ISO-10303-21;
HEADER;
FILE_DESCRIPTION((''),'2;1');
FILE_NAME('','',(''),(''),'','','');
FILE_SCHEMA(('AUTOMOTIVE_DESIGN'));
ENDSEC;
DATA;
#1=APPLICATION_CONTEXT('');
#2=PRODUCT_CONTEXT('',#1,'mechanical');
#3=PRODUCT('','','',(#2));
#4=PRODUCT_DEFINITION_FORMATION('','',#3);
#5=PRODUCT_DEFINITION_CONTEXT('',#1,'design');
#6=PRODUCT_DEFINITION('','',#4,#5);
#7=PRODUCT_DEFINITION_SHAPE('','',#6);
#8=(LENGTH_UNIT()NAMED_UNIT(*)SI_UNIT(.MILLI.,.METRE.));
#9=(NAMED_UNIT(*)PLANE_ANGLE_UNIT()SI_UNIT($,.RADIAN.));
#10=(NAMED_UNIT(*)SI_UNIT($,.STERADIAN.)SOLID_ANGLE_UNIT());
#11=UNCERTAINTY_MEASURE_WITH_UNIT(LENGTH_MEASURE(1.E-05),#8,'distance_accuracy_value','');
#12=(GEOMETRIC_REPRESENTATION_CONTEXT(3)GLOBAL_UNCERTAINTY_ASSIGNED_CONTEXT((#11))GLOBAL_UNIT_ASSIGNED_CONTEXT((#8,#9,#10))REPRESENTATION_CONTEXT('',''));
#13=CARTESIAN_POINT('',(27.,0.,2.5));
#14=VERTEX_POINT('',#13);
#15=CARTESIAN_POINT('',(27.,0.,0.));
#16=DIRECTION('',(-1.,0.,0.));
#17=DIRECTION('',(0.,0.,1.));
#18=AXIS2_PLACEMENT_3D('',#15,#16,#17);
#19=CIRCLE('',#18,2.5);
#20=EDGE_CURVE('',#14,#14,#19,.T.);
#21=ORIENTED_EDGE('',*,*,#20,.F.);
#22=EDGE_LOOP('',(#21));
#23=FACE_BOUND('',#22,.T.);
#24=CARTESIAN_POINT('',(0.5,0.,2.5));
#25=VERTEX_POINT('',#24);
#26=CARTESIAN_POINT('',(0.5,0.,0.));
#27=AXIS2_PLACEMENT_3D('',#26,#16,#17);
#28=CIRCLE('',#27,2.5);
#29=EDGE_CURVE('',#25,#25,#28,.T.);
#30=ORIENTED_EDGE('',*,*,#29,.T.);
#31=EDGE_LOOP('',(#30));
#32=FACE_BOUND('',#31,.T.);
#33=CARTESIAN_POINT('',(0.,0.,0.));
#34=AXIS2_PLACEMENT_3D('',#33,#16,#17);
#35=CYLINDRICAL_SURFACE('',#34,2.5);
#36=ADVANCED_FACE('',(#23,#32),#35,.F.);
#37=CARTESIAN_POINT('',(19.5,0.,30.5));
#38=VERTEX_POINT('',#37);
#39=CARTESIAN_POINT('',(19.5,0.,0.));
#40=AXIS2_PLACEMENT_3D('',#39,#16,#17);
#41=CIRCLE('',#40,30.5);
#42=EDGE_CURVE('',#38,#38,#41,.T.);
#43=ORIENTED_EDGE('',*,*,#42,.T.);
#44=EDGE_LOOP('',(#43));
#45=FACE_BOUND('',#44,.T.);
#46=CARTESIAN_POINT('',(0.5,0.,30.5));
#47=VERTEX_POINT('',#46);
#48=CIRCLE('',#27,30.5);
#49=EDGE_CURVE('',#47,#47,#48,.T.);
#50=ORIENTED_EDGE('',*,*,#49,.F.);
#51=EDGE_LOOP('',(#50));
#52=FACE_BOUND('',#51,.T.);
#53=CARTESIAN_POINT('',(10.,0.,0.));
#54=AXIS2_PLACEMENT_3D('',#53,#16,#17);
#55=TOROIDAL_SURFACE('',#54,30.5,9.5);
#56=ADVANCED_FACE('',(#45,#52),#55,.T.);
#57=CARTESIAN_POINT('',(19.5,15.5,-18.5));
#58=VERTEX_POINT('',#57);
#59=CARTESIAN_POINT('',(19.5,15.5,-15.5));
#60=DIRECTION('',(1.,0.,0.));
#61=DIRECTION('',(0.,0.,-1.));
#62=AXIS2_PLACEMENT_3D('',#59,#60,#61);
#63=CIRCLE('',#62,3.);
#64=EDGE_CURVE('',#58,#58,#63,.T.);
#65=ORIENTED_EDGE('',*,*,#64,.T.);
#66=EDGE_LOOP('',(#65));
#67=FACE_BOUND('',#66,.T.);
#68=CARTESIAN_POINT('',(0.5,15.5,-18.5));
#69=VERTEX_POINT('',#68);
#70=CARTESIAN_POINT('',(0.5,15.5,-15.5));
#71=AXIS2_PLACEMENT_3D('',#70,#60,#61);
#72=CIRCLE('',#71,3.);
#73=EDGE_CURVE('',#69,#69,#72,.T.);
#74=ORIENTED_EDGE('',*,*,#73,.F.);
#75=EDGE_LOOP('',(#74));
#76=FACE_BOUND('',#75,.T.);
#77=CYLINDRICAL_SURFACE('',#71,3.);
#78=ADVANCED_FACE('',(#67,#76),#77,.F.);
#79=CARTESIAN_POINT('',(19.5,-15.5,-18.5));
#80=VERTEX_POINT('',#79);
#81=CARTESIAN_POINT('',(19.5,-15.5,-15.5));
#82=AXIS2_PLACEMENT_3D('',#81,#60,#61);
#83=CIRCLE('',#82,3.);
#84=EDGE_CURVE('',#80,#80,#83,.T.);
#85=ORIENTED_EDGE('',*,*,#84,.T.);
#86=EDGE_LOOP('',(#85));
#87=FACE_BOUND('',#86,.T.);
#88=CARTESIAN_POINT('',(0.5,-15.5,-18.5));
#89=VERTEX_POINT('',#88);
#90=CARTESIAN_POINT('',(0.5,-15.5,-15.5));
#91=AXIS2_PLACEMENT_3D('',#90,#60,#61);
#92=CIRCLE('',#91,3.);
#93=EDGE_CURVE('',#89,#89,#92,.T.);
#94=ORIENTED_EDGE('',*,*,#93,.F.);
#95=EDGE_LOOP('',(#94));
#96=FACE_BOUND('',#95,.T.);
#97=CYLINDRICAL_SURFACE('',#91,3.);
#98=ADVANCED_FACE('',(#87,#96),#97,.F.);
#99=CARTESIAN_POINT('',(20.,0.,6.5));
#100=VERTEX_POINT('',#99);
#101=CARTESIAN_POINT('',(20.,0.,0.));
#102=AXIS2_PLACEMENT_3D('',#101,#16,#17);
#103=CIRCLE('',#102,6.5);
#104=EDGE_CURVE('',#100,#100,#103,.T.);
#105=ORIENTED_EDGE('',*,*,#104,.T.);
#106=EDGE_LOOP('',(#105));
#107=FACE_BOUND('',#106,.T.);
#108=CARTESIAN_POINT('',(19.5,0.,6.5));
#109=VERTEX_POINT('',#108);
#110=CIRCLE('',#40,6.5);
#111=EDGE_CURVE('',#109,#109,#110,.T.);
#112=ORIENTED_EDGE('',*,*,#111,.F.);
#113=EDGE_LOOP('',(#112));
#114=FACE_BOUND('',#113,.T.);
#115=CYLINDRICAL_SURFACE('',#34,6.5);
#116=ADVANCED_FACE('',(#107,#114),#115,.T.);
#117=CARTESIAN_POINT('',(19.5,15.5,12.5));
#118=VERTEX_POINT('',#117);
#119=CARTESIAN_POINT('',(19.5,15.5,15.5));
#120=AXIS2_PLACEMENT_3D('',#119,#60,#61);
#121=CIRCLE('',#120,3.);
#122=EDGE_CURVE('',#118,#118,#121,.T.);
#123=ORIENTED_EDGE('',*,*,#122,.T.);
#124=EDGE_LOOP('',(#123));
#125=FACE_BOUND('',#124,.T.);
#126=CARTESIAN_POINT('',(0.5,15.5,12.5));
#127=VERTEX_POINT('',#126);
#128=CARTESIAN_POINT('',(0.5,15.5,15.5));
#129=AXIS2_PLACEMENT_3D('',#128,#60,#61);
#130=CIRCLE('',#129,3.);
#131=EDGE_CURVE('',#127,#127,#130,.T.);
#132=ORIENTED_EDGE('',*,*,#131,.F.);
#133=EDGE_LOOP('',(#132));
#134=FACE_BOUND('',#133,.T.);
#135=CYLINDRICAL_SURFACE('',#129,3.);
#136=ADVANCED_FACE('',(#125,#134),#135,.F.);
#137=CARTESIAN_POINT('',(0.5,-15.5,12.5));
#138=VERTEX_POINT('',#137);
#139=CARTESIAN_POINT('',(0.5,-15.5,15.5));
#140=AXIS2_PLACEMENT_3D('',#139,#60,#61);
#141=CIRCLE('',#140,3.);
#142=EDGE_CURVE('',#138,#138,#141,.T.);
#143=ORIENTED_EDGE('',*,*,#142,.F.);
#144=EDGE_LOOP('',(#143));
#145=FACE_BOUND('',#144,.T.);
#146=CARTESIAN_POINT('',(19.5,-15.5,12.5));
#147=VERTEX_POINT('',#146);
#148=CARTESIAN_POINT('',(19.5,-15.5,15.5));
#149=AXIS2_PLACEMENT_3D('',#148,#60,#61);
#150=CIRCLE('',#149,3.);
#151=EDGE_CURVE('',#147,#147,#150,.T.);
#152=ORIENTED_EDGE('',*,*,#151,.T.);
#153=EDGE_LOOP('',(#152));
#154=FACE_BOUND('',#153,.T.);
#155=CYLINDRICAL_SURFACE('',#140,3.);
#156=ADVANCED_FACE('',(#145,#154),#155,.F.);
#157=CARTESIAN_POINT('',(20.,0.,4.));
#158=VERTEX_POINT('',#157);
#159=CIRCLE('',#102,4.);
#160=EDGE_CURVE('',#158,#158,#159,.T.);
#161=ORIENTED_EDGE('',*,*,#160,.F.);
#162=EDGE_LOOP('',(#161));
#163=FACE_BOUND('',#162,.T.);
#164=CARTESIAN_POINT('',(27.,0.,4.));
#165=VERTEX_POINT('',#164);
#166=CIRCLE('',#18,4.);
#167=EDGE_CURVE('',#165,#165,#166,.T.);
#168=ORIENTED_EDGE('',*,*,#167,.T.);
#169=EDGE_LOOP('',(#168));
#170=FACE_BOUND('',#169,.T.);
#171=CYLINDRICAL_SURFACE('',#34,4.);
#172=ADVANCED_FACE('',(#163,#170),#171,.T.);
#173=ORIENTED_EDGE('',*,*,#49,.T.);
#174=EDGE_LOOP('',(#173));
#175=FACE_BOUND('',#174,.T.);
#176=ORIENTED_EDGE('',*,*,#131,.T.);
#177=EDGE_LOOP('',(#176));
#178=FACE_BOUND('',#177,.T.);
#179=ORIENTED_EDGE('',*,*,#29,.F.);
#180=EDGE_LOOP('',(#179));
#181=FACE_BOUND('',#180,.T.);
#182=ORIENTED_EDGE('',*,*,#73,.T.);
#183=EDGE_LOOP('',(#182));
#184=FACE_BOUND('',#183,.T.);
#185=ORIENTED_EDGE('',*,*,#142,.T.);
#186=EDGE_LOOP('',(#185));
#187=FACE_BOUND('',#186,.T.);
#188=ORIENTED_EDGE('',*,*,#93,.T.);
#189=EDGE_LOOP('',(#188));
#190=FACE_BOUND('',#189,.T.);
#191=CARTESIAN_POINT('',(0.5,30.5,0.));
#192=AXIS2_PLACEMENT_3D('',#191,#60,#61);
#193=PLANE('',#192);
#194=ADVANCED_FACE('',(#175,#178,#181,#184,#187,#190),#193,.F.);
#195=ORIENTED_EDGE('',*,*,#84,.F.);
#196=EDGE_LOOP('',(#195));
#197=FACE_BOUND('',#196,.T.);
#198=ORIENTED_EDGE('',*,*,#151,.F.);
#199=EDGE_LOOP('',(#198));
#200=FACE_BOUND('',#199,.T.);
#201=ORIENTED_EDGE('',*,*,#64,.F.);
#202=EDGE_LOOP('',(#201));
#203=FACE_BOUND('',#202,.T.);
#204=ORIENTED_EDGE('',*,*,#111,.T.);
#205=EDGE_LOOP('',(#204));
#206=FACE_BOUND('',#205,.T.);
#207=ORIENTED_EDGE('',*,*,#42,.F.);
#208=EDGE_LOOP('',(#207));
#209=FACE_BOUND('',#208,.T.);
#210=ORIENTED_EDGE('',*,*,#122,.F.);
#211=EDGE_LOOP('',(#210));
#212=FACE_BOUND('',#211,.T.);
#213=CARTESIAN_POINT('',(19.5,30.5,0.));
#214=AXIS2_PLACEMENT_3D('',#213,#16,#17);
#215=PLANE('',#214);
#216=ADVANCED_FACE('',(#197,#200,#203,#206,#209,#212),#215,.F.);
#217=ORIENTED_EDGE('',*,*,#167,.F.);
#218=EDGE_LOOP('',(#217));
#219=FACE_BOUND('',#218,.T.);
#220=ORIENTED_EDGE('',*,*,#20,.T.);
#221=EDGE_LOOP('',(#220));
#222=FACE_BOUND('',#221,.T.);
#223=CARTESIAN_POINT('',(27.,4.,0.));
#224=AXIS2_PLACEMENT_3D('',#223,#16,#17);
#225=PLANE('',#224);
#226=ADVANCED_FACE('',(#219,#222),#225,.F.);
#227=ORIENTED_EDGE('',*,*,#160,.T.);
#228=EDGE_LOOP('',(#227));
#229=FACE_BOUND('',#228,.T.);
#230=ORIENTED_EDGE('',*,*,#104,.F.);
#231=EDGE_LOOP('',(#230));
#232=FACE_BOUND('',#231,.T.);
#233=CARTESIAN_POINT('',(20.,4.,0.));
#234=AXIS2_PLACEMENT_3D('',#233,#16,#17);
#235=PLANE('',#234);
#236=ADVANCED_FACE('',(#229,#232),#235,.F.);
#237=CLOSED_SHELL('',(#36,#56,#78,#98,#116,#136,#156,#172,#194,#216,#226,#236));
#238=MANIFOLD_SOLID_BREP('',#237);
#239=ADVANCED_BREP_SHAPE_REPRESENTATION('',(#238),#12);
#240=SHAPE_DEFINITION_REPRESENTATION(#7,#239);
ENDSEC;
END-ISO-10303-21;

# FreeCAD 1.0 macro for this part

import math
import FreeCAD as App
import Part
import Sketcher
from FreeCAD import Vector
Q = App.Units.Quantity

doc = App.newDocument("Part")
body = doc.addObject("PartDesign::Body", "Body")

sketch1 = body.newObject("Sketcher::SketchObject", "Sketch")
sketch1.AttachmentSupport = (doc.getObject("XY_Plane"), [""])
sketch1.MapMode = "FlatFace"
sketch1.addGeometry(Part.LineSegment(Vector(27, 2.5, 0), Vector(27, 4, 0)), False)
sketch1.addGeometry(Part.LineSegment(Vector(27, 4, 0), Vector(20, 4, 0)), False)
sketch1.addGeometry(Part.LineSegment(Vector(20, 4, 0), Vector(20, 6.5, 0)), False)
sketch1.addGeometry(Part.LineSegment(Vector(20, 6.5, 0), Vector(19.5, 6.5, 0)), False)
sketch1.addGeometry(Part.LineSegment(Vector(19.5, 6.5, 0), Vector(19.5, 30.5, 0)), False)
sketch1.addGeometry(Part.ArcOfCircle(Part.Circle(Vector(10, 30.5, 0), Vector(0, 0, 1), 9.5), math.radians(0), math.radians(180)), False)
sketch1.addGeometry(Part.LineSegment(Vector(0.5, 30.5, 0), Vector(0.5, 2.5, 0)), False)
sketch1.addGeometry(Part.LineSegment(Vector(0.5, 2.5, 0), Vector(27, 2.5, 0)), False)
sketch1.addConstraint(Sketcher.Constraint("Coincident", 0, 2, 1, 1))
sketch1.addConstraint(Sketcher.Constraint("Coincident", 1, 2, 2, 1))
sketch1.addConstraint(Sketcher.Constraint("Coincident", 2, 2, 3, 1))
sketch1.addConstraint(Sketcher.Constraint("Coincident", 3, 2, 4, 1))
sketch1.addConstraint(Sketcher.Constraint("Tangent", 4, 2, 5, 1))
sketch1.addConstraint(Sketcher.Constraint("Tangent", 5, 2, 6, 1))
sketch1.addConstraint(Sketcher.Constraint("Coincident", 6, 2, 7, 1))
sketch1.addConstraint(Sketcher.Constraint("Coincident", 7, 2, 0, 1))
sketch1.addConstraint(Sketcher.Constraint("Vertical", 0))
sketch1.addConstraint(Sketcher.Constraint("Horizontal", 1))
sketch1.addConstraint(Sketcher.Constraint("Vertical", 2))
sketch1.addConstraint(Sketcher.Constraint("Horizontal", 3))
sketch1.addConstraint(Sketcher.Constraint("Vertical", 4))
sketch1.addConstraint(Sketcher.Constraint("Vertical", 6))
sketch1.addConstraint(Sketcher.Constraint("Horizontal", 7))
sketch1.addConstraint(Sketcher.Constraint("Radius", 5, Q("9.5 mm")))
sketch1.addConstraint(Sketcher.Constraint("DistanceX", 1, 2, 1, 1, Q("7 mm")))
sketch1.addConstraint(Sketcher.Constraint("DistanceY", 4, 1, 4, 2, Q("24 mm")))
sketch1.addConstraint(Sketcher.Constraint("DistanceY", 6, 2, 6, 1, Q("28 mm")))
sketch1.addConstraint(Sketcher.Constraint("DistanceX", 3, 2, 3, 1, Q("0.5 mm")))
sketch1.addConstraint(Sketcher.Constraint("DistanceY", 0, 1, 0, 2, Q("1.5 mm")))
sketch1.addConstraint(Sketcher.Constraint("DistanceX", -1, 1, 5, 3, Q("10 mm")))
sketch1.addConstraint(Sketcher.Constraint("DistanceY", -1, 1, 0, 2, Q("4 mm")))
revolution = body.newObject("PartDesign::Revolution", "Revolution")
revolution.Profile = sketch1
revolution.ReferenceAxis = (sketch1, ["H_Axis"])
revolution.Angle = 360

sketch2 = body.newObject("Sketcher::SketchObject", "Sketch001")
sketch2.AttachmentSupport = (doc.getObject("YZ_Plane"), [""])
sketch2.MapMode = "FlatFace"
sketch2.AttachmentOffset = App.Placement(Vector(0, 0, 19.5), App.Rotation())
sketch2.addGeometry(Part.Circle(Vector(15.5, 15.5, 0), Vector(0, 0, 1), 3), False)
sketch2.addGeometry(Part.Circle(Vector(15.5, -15.5, 0), Vector(0, 0, 1), 3), False)
sketch2.addGeometry(Part.Circle(Vector(-15.5, -15.5, 0), Vector(0, 0, 1), 3), False)
sketch2.addGeometry(Part.Circle(Vector(-15.5, 15.5, 0), Vector(0, 0, 1), 3), False)
sketch2.addConstraint(Sketcher.Constraint("Equal", 0, 1))
sketch2.addConstraint(Sketcher.Constraint("Equal", 1, 2))
sketch2.addConstraint(Sketcher.Constraint("Equal", 2, 3))
sketch2.addConstraint(Sketcher.Constraint("Symmetric", 0, 3, 2, 3, -1, 1))
sketch2.addConstraint(Sketcher.Constraint("Symmetric", 1, 3, 3, 3, -1, 1))
sketch2.addConstraint(Sketcher.Constraint("Symmetric", 1, 3, 2, 3, -2))
sketch2.addConstraint(Sketcher.Constraint("Diameter", 0, Q("6 mm")))
sketch2.addConstraint(Sketcher.Constraint("DistanceY", 1, 3, 0, 3, Q("31 mm")))
sketch2.addConstraint(Sketcher.Constraint("DistanceX", 2, 3, 1, 3, Q("31 mm")))
pocket1 = body.newObject("PartDesign::Pocket", "Pocket")
pocket1.Profile = sketch2
pocket1.Type = "ThroughAll"

doc.recompute()
